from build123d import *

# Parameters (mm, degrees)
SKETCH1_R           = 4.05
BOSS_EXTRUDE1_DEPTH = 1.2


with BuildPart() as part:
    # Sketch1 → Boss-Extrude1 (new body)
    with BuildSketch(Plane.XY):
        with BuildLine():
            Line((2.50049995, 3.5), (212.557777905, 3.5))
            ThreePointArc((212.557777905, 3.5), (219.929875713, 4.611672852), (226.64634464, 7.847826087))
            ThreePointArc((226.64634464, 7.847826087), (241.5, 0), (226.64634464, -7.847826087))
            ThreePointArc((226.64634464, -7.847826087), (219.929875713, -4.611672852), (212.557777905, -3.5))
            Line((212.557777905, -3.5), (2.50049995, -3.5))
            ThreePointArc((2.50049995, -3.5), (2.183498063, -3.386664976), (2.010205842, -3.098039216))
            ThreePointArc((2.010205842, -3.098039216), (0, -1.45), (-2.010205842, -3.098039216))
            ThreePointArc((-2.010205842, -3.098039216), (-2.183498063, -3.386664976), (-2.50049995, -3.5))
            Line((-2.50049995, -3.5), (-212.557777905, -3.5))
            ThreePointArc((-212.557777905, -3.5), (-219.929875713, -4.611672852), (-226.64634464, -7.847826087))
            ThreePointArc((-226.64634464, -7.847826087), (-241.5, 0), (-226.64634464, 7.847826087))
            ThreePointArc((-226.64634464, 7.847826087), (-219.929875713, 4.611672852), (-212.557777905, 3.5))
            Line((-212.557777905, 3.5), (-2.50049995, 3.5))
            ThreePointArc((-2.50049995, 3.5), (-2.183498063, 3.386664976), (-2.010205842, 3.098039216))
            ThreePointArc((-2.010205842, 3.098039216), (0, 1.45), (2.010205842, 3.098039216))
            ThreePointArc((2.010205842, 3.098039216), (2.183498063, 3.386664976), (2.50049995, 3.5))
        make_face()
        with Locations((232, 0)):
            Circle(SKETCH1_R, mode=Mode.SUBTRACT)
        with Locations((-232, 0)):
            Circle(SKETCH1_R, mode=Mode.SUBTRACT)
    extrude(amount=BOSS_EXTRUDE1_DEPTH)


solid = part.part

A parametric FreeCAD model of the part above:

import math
import FreeCAD as App
import Part
import Sketcher
Q = App.Units.Quantity

doc = App.newDocument("Part")
body = doc.addObject("PartDesign::Body", "Body")

# Sketch on XY plane
sketch1 = body.newObject("Sketcher::SketchObject", "Sketch")
sketch1.AttachmentSupport = (doc.getObject("XY_Plane"), [""])
sketch1.MapMode = "FlatFace"
sketch1.addGeometry(Part.LineSegment(App.Vector(212.6, 3.5, 0), App.Vector(2.5, 3.5, 0)), False)
sketch1.addGeometry(Part.ArcOfCircle(Part.Circle(App.Vector(2.5, 3, 0), App.Vector(0, 0, 1), 0.5), math.radians(90), math.radians(169)), False)
sketch1.addGeometry(Part.ArcOfCircle(Part.Circle(App.Vector(0, 3.5, 0), App.Vector(0, 0, 1), 2), math.radians(-169), math.radians(-11)), False)
sketch1.addGeometry(Part.ArcOfCircle(Part.Circle(App.Vector(-2.5, 3, 0), App.Vector(0, 0, 1), 0.5), math.radians(11), math.radians(90)), False)
sketch1.addGeometry(Part.LineSegment(App.Vector(-2.5, 3.5, 0), App.Vector(-212.6, 3.5, 0)), False)
sketch1.addGeometry(Part.ArcOfCircle(Part.Circle(App.Vector(-212.6, 28.5, 0), App.Vector(0, 0, 1), 25), math.radians(-124), math.radians(-90)), False)
sketch1.addGeometry(Part.ArcOfCircle(Part.Circle(App.Vector(-232, 0, 0), App.Vector(0, 0, 1), 9.5), math.radians(56), math.radians(304)), False)
sketch1.addGeometry(Part.ArcOfCircle(Part.Circle(App.Vector(-212.6, -28.5, 0), App.Vector(0, 0, 1), 25), math.radians(90), math.radians(124)), False)
sketch1.addGeometry(Part.LineSegment(App.Vector(-212.6, -3.5, 0), App.Vector(-2.5, -3.5, 0)), False)
sketch1.addGeometry(Part.ArcOfCircle(Part.Circle(App.Vector(-2.5, -3, 0), App.Vector(0, 0, 1), 0.5), math.radians(-90), math.radians(-11)), False)
sketch1.addGeometry(Part.ArcOfCircle(Part.Circle(App.Vector(0, -3.5, 0), App.Vector(0, 0, 1), 2), math.radians(11), math.radians(169)), False)
sketch1.addGeometry(Part.ArcOfCircle(Part.Circle(App.Vector(2.5, -3, 0), App.Vector(0, 0, 1), 0.5), math.radians(-169), math.radians(-90)), False)
sketch1.addGeometry(Part.LineSegment(App.Vector(2.5, -3.5, 0), App.Vector(212.6, -3.5, 0)), False)
sketch1.addGeometry(Part.ArcOfCircle(Part.Circle(App.Vector(212.6, -28.5, 0), App.Vector(0, 0, 1), 25), math.radians(56), math.radians(90)), False)
sketch1.addGeometry(Part.ArcOfCircle(Part.Circle(App.Vector(232, 0, 0), App.Vector(0, 0, 1), 9.5), math.radians(-124), math.radians(124)), False)
sketch1.addGeometry(Part.ArcOfCircle(Part.Circle(App.Vector(212.6, 28.5, 0), App.Vector(0, 0, 1), 25), math.radians(-90), math.radians(-56)), False)
sketch1.addGeometry(Part.Circle(App.Vector(232, 0, 0), App.Vector(0, 0, 1), 4), False)
sketch1.addGeometry(Part.Circle(App.Vector(-232, 0, 0), App.Vector(0, 0, 1), 4), False)
sketch1.addConstraint(Sketcher.Constraint("Tangent", 0, 2, 1, 1))
sketch1.addConstraint(Sketcher.Constraint("Tangent", 1, 2, 2, 2))
sketch1.addConstraint(Sketcher.Constraint("Tangent", 2, 1, 3, 1))
sketch1.addConstraint(Sketcher.Constraint("Tangent", 3, 2, 4, 1))
sketch1.addConstraint(Sketcher.Constraint("Tangent", 4, 2, 5, 2))
sketch1.addConstraint(Sketcher.Constraint("Tangent", 5, 1, 6, 1))
sketch1.addConstraint(Sketcher.Constraint("Tangent", 6, 2, 7, 2))
sketch1.addConstraint(Sketcher.Constraint("Tangent", 7, 1, 8, 1))
sketch1.addConstraint(Sketcher.Constraint("Tangent", 8, 2, 9, 1))
sketch1.addConstraint(Sketcher.Constraint("Tangent", 9, 2, 10, 2))
sketch1.addConstraint(Sketcher.Constraint("Tangent", 10, 1, 11, 1))
sketch1.addConstraint(Sketcher.Constraint("Tangent", 11, 2, 12, 1))
sketch1.addConstraint(Sketcher.Constraint("Tangent", 12, 2, 13, 2))
sketch1.addConstraint(Sketcher.Constraint("Tangent", 13, 1, 14, 1))
sketch1.addConstraint(Sketcher.Constraint("Tangent", 14, 2, 15, 2))
sketch1.addConstraint(Sketcher.Constraint("Tangent", 15, 1, 0, 1))
sketch1.addConstraint(Sketcher.Constraint("Horizontal", 0))
sketch1.addConstraint(Sketcher.Constraint("Horizontal", 4))
sketch1.addConstraint(Sketcher.Constraint("Horizontal", 8))
sketch1.addConstraint(Sketcher.Constraint("Horizontal", 12))
sketch1.addConstraint(Sketcher.Constraint("Coincident", 16, 3, 14, 3))
sketch1.addConstraint(Sketcher.Constraint("Coincident", 17, 3, 6, 3))
sketch1.addConstraint(Sketcher.Constraint("Equal", 1, 3))
sketch1.addConstraint(Sketcher.Constraint("Equal", 5, 7))
sketch1.addConstraint(Sketcher.Constraint("Equal", 3, 9))
sketch1.addConstraint(Sketcher.Constraint("Equal", 2, 10))
sketch1.addConstraint(Sketcher.Constraint("Equal", 9, 11))
sketch1.addConstraint(Sketcher.Constraint("Equal", 7, 13))
sketch1.addConstraint(Sketcher.Constraint("Equal", 6, 14))
sketch1.addConstraint(Sketcher.Constraint("Equal", 13, 15))
sketch1.addConstraint(Sketcher.Constraint("Equal", 16, 17))
sketch1.addConstraint(Sketcher.Constraint("Symmetric", 1, 3, 9, 3, -1, 1))
sketch1.addConstraint(Sketcher.Constraint("Symmetric", 3, 3, 11, 3, -1, 1))
sketch1.addConstraint(Sketcher.Constraint("Symmetric", 6, 3, 14, 3, -1, 1))
sketch1.addConstraint(Sketcher.Constraint("Symmetric", 1, 3, 3, 3, -2))
sketch1.addConstraint(Sketcher.Constraint("PointOnObject", 6, 3, -1))
sketch1.addConstraint(Sketcher.Constraint("Horizontal", 2, 3, 0, 2))
sketch1.addConstraint(Sketcher.Constraint("Radius", 5, Q("25 mm")))
sketch1.addConstraint(Sketcher.Constraint("Diameter", 16, Q("8.1 mm")))
sketch1.addConstraint(Sketcher.Constraint("Radius", 1, Q("0.5 mm")))
sketch1.addConstraint(Sketcher.Constraint("Radius", 6, Q("9.5 mm")))
sketch1.addConstraint(Sketcher.Constraint("Radius", 2, Q("2.05 mm")))
sketch1.addConstraint(Sketcher.Constraint("DistanceY", -1, 1, 1, 3, Q("3 mm")))
sketch1.addConstraint(Sketcher.Constraint("DistanceX", 6, 3, -1, 1, Q("232 mm")))
pad1 = body.newObject("PartDesign::Pad", "Pad")
pad1.Profile = sketch1
pad1.Length = 1.2

doc.recompute()
